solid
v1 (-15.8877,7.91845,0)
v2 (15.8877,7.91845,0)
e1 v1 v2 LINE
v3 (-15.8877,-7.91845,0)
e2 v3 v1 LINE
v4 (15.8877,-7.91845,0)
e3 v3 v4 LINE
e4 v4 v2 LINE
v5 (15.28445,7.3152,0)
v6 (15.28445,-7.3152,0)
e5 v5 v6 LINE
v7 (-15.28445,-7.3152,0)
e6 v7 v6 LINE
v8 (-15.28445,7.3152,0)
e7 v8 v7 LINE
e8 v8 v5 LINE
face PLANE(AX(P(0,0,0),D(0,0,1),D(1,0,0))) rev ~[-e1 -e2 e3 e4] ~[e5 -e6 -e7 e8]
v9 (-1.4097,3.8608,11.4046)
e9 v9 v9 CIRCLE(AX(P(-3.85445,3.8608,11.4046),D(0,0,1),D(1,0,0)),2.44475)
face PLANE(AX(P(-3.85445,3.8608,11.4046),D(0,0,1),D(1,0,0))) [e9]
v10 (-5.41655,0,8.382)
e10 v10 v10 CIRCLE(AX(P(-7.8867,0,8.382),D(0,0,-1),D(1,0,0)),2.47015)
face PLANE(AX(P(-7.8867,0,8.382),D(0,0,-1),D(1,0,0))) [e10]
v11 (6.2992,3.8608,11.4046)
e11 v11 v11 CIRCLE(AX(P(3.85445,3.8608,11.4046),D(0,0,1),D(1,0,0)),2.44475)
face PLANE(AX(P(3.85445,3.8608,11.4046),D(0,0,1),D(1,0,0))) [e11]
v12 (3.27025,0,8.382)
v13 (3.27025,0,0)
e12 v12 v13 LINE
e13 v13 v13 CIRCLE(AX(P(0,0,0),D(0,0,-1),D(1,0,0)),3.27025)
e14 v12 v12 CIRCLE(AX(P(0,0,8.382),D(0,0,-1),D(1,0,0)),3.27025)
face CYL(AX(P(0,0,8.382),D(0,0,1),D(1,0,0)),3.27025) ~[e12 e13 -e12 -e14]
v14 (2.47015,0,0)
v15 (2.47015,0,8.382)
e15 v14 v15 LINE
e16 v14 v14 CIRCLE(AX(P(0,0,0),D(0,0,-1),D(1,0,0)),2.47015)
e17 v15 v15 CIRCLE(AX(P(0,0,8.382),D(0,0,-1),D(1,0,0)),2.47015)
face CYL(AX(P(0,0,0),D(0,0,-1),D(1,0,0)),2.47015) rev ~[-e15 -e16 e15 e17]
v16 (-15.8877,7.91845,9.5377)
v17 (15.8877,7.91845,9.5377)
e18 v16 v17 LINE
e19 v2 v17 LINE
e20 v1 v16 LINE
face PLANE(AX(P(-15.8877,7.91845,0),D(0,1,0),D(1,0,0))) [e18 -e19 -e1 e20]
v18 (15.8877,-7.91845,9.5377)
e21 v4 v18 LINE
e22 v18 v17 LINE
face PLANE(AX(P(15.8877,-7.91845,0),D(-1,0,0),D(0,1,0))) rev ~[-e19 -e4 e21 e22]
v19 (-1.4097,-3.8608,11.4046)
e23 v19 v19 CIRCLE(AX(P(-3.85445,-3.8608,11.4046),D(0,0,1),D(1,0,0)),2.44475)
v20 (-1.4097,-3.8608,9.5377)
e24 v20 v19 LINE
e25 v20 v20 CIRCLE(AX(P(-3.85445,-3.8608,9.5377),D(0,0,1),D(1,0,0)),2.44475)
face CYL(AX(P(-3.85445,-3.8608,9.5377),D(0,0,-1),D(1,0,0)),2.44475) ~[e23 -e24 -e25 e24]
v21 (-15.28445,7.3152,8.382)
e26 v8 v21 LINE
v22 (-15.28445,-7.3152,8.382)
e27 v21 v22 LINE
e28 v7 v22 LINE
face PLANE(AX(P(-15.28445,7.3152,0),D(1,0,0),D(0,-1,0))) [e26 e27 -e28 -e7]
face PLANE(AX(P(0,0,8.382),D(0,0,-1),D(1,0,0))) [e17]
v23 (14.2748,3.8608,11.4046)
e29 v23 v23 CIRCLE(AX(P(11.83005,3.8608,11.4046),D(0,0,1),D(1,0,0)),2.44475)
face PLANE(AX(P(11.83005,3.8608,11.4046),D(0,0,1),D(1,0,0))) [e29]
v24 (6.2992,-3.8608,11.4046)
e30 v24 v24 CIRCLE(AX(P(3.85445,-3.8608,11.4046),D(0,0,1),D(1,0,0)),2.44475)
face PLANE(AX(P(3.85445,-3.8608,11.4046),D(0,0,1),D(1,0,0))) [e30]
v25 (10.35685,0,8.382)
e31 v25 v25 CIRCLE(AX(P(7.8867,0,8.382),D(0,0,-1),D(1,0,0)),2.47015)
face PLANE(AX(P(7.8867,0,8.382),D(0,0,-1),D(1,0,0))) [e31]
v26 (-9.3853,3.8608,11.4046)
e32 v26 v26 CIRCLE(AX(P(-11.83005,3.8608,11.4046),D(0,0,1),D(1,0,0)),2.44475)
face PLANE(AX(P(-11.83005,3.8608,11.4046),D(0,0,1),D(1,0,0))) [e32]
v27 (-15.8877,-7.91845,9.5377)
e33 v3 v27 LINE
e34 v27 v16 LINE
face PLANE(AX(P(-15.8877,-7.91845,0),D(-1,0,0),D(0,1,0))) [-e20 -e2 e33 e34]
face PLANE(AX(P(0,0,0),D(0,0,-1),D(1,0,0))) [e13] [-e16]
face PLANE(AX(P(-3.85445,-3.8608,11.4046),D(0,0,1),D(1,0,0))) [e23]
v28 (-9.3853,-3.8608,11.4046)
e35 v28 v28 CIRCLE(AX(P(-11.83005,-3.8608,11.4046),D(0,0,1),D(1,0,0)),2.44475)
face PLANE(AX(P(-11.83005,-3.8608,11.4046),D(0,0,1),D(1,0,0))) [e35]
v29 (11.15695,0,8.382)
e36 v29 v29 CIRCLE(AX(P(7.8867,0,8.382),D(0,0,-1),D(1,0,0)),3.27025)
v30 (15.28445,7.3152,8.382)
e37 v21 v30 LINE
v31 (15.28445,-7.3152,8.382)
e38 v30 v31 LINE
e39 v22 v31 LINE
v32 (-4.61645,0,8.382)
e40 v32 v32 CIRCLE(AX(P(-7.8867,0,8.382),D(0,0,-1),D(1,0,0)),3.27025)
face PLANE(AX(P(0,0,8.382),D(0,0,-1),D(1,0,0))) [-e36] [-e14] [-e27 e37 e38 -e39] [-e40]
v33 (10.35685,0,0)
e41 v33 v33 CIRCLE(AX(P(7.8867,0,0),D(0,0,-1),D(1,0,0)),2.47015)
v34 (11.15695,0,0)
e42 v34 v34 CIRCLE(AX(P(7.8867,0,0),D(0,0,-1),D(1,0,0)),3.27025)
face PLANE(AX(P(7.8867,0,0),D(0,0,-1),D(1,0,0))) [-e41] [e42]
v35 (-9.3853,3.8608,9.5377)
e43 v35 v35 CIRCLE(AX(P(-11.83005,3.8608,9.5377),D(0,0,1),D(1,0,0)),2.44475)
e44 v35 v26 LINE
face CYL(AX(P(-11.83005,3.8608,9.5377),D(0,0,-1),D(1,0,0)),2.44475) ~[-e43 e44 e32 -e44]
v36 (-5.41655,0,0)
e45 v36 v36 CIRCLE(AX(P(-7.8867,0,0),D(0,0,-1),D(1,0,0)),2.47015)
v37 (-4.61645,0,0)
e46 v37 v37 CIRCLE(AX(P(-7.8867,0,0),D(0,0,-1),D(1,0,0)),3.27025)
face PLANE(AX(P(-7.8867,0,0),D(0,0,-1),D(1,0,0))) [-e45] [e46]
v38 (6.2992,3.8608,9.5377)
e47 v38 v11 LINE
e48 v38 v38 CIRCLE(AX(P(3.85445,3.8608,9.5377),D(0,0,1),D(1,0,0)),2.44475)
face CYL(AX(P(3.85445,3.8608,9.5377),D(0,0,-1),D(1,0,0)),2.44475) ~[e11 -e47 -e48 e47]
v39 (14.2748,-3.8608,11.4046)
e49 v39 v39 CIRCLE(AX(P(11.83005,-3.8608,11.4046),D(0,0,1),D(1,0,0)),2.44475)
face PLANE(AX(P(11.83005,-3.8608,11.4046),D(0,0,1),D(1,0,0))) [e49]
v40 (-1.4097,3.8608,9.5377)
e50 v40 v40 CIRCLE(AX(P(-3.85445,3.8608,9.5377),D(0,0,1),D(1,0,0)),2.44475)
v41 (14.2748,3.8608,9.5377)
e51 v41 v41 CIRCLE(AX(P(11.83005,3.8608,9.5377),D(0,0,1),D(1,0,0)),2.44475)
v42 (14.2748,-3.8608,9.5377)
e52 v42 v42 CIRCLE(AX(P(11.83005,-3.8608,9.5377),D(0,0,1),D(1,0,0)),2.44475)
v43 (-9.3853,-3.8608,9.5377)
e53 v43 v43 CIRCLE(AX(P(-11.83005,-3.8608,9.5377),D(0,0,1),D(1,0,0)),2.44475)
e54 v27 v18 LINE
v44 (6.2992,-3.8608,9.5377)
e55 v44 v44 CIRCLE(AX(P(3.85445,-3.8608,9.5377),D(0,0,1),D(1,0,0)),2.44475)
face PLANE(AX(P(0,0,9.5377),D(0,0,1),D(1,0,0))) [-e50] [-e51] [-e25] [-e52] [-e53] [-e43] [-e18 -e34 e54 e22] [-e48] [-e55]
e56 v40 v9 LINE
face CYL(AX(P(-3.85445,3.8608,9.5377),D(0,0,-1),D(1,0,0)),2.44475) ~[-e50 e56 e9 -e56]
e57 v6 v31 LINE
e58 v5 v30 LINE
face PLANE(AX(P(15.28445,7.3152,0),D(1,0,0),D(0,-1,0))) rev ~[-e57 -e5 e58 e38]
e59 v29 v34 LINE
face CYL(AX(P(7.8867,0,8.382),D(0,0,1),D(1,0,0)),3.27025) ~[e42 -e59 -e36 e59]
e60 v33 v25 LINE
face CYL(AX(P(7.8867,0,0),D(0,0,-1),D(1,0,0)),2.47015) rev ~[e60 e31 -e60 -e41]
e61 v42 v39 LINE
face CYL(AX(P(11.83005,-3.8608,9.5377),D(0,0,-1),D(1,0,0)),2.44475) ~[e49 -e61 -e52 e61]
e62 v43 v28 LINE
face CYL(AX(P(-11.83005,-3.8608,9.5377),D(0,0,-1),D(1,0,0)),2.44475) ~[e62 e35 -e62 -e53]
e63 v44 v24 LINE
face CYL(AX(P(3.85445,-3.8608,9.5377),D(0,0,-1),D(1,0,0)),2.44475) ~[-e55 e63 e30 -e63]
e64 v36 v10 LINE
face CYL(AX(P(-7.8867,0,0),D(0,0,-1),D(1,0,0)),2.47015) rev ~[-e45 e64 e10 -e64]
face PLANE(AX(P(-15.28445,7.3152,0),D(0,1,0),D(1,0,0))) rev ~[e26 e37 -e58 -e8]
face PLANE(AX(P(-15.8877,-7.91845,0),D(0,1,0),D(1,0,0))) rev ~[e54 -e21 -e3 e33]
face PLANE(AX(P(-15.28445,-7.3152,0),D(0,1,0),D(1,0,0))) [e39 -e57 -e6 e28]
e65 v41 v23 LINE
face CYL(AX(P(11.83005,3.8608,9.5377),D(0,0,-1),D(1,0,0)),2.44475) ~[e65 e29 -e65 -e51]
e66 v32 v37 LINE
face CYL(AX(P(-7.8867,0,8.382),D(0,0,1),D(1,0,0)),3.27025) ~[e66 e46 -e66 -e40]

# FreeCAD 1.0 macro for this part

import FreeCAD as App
import Part
import Sketcher
from FreeCAD import Vector
Q = App.Units.Quantity

doc = App.newDocument("Part")
body = doc.addObject("PartDesign::Body", "Body")

# Sketch on XY plane
sketch1 = body.newObject("Sketcher::SketchObject", "Sketch")
sketch1.AttachmentSupport = (doc.getObject("XY_Plane"), [""])
sketch1.MapMode = "FlatFace"
sketch1.addGeometry([
    Part.LineSegment(Vector(-16, 8, 0), Vector(-16, -8, 0)),
    Part.LineSegment(Vector(-16, -8, 0), Vector(16, -8, 0)),
    Part.LineSegment(Vector(16, -8, 0), Vector(16, 8, 0)),
    Part.LineSegment(Vector(16, 8, 0), Vector(-16, 8, 0)),
], False)
sketch1.addConstraint([
    Sketcher.Constraint("Coincident", 0, 2, 1, 1),
    Sketcher.Constraint("Coincident", 1, 2, 2, 1),
    Sketcher.Constraint("Coincident", 2, 2, 3, 1),
    Sketcher.Constraint("Coincident", 3, 2, 0, 1),
    Sketcher.Constraint("Vertical", 0),
    Sketcher.Constraint("Horizontal", 1),
    Sketcher.Constraint("Vertical", 2),
    Sketcher.Constraint("Horizontal", 3),
    Sketcher.Constraint("Symmetric", 0, 2, 2, 2, -1, 1),
    Sketcher.Constraint("DistanceX", 1, 1, 1, 2, Q("1.251 in")),
    Sketcher.Constraint("DistanceY", 0, 2, 0, 1, Q("0.6235 in")),
])
pad1 = body.newObject("PartDesign::Pad", "Pad")
pad1.Profile = sketch1
pad1.Length = Q("0.3755 in")

# Sketch on XY plane
sketch2 = body.newObject("Sketcher::SketchObject", "Sketch001")
sketch2.AttachmentSupport = (doc.getObject("XY_Plane"), [""])
sketch2.MapMode = "FlatFace"
sketch2.AttachmentOffset = App.Placement(Vector(0, 0, 0.3755 * 25.4), App.Rotation())
sketch2.addGeometry([
    Part.Circle(Vector(-11.8, 3.9, 0), Vector(0, 0, 1), 2.4),  # 0
    Part.Circle(Vector(-3.9, 3.9, 0), Vector(0, 0, 1), 2.4),  # 1
    Part.Circle(Vector(3.9, 3.9, 0), Vector(0, 0, 1), 2.4),  # 2
    Part.Circle(Vector(11.8, 3.9, 0), Vector(0, 0, 1), 2.4),  # 3
    Part.Circle(Vector(-11.8, -3.9, 0), Vector(0, 0, 1), 2.4),  # 4
    Part.Circle(Vector(-3.9, -3.9, 0), Vector(0, 0, 1), 2.4),  # 5
    Part.Circle(Vector(3.9, -3.9, 0), Vector(0, 0, 1), 2.4),  # 6
    Part.Circle(Vector(11.8, -3.9, 0), Vector(0, 0, 1), 2.4),  # 7
], False)
sketch2.addConstraint([
    Sketcher.Constraint("Equal", 0, 1),
    Sketcher.Constraint("Equal", 1, 2),
    Sketcher.Constraint("Equal", 2, 3),
    Sketcher.Constraint("Equal", 3, 4),
    Sketcher.Constraint("Equal", 4, 5),
    Sketcher.Constraint("Equal", 5, 6),
    Sketcher.Constraint("Equal", 6, 7),
    Sketcher.Constraint("Symmetric", 3, 3, 4, 3, -1, 1),
    Sketcher.Constraint("Symmetric", 2, 3, 5, 3, -1, 1),
    Sketcher.Constraint("Symmetric", 1, 3, 6, 3, -1, 1),
    Sketcher.Constraint("Symmetric", 0, 3, 7, 3, -1, 1),
    Sketcher.Constraint("Symmetric", 1, 3, 2, 3, -2),
    Sketcher.Constraint("Symmetric", 0, 3, 3, 3, -2),
    Sketcher.Constraint("Horizontal", 0, 3, 1, 3),
    Sketcher.Constraint("Diameter", 0, Q("0.1925 in")),
    Sketcher.Constraint("DistanceY", -1, 1, 0, 3, Q("0.152 in")),
    Sketcher.Constraint("DistanceX", 0, 3, 1, 3, Q("0.314 in")),
    Sketcher.Constraint("DistanceX", 1, 3, 2, 3, Q("0.3035 in")),
])
pad2 = body.newObject("PartDesign::Pad", "Pad001")
pad2.Profile = sketch2
pad2.Length = Q("0.0735 in")

# Sketch on XY plane
sketch3 = body.newObject("Sketcher::SketchObject", "Sketch002")
sketch3.AttachmentSupport = (doc.getObject("XY_Plane"), [""])
sketch3.MapMode = "FlatFace"
sketch3.addGeometry([
    Part.LineSegment(Vector(-15, -7, 0), Vector(-15, 7, 0)),
    Part.LineSegment(Vector(-15, 7, 0), Vector(15, 7, 0)),
    Part.LineSegment(Vector(15, 7, 0), Vector(15, -7, 0)),
    Part.LineSegment(Vector(15, -7, 0), Vector(-15, -7, 0)),
], False)
sketch3.addConstraint([
    Sketcher.Constraint("Coincident", 0, 2, 1, 1),
    Sketcher.Constraint("Coincident", 1, 2, 2, 1),
    Sketcher.Constraint("Coincident", 2, 2, 3, 1),
    Sketcher.Constraint("Coincident", 3, 2, 0, 1),
    Sketcher.Constraint("Vertical", 0),
    Sketcher.Constraint("Horizontal", 1),
    Sketcher.Constraint("Vertical", 2),
    Sketcher.Constraint("Horizontal", 3),
    Sketcher.Constraint("Symmetric", 0, 2, 2, 2, -1, 1),
    Sketcher.Constraint("DistanceY", 0, 1, 0, 2, Q("0.576 in")),
    Sketcher.Constraint("DistanceX", 1, 1, 1, 2, Q("1.2035 in")),
])
pocket1 = body.newObject("PartDesign::Pocket", "Pocket")
pocket1.Profile = sketch3
pocket1.Length = Q("0.33 in")
pocket1.Reversed = True

# Sketch on XY plane
sketch4 = body.newObject("Sketcher::SketchObject", "Sketch003")
sketch4.AttachmentSupport = (doc.getObject("XY_Plane"), [""])
sketch4.MapMode = "FlatFace"
sketch4.AttachmentOffset = App.Placement(Vector(0, 0, 0.33 * 25.4), App.Rotation())
sketch4.addGeometry([
    Part.Circle(Vector(-7.9, 0, 0), Vector(0, 0, 1), 3.3),
    Part.Circle(Vector(0, 0, 0), Vector(0, 0, 1), 3.3),
    Part.Circle(Vector(7.9, 0, 0), Vector(0, 0, 1), 3.3),
], False)
sketch4.addConstraint([
    Sketcher.Constraint("Coincident", 1, 3, -1, 1),
    Sketcher.Constraint("Equal", 0, 1),
    Sketcher.Constraint("Equal", 1, 2),
    Sketcher.Constraint("Symmetric", 0, 3, 2, 3, -1, 1),
    Sketcher.Constraint("PointOnObject", 0, 3, -1),
    Sketcher.Constraint("Diameter", 0, Q("0.2575 in")),
    Sketcher.Constraint("DistanceX", 0, 3, 2, 3, Q("0.621 in")),
])
pad3 = body.newObject("PartDesign::Pad", "Pad002")
pad3.Profile = sketch4
pad3.Length = Q("0.33 in")
pad3.Reversed = True

# Sketch on XY plane
sketch5 = body.newObject("Sketcher::SketchObject", "Sketch004")
sketch5.AttachmentSupport = (doc.getObject("XY_Plane"), [""])
sketch5.MapMode = "FlatFace"
sketch5.addGeometry([
    Part.Circle(Vector(-7.9, 0, 0), Vector(0, 0, 1), 2.5),
    Part.Circle(Vector(0, 0, 0), Vector(0, 0, 1), 2.5),
    Part.Circle(Vector(7.9, 0, 0), Vector(0, 0, 1), 2.5),
], False)
sketch5.addConstraint([
    Sketcher.Constraint("Coincident", 1, 3, -1, 1),
    Sketcher.Constraint("Equal", 0, 1),
    Sketcher.Constraint("Equal", 1, 2),
    Sketcher.Constraint("Symmetric", 0, 3, 2, 3, -1, 1),
    Sketcher.Constraint("PointOnObject", 0, 3, -1),
    Sketcher.Constraint("Diameter", 0, Q("0.1945 in")),
    Sketcher.Constraint("DistanceX", 0, 3, 2, 3, Q("0.621 in")),
])
pocket2 = body.newObject("PartDesign::Pocket", "Pocket001")
pocket2.Profile = sketch5
pocket2.Length = Q("0.33 in")
pocket2.Reversed = True

doc.recompute()
